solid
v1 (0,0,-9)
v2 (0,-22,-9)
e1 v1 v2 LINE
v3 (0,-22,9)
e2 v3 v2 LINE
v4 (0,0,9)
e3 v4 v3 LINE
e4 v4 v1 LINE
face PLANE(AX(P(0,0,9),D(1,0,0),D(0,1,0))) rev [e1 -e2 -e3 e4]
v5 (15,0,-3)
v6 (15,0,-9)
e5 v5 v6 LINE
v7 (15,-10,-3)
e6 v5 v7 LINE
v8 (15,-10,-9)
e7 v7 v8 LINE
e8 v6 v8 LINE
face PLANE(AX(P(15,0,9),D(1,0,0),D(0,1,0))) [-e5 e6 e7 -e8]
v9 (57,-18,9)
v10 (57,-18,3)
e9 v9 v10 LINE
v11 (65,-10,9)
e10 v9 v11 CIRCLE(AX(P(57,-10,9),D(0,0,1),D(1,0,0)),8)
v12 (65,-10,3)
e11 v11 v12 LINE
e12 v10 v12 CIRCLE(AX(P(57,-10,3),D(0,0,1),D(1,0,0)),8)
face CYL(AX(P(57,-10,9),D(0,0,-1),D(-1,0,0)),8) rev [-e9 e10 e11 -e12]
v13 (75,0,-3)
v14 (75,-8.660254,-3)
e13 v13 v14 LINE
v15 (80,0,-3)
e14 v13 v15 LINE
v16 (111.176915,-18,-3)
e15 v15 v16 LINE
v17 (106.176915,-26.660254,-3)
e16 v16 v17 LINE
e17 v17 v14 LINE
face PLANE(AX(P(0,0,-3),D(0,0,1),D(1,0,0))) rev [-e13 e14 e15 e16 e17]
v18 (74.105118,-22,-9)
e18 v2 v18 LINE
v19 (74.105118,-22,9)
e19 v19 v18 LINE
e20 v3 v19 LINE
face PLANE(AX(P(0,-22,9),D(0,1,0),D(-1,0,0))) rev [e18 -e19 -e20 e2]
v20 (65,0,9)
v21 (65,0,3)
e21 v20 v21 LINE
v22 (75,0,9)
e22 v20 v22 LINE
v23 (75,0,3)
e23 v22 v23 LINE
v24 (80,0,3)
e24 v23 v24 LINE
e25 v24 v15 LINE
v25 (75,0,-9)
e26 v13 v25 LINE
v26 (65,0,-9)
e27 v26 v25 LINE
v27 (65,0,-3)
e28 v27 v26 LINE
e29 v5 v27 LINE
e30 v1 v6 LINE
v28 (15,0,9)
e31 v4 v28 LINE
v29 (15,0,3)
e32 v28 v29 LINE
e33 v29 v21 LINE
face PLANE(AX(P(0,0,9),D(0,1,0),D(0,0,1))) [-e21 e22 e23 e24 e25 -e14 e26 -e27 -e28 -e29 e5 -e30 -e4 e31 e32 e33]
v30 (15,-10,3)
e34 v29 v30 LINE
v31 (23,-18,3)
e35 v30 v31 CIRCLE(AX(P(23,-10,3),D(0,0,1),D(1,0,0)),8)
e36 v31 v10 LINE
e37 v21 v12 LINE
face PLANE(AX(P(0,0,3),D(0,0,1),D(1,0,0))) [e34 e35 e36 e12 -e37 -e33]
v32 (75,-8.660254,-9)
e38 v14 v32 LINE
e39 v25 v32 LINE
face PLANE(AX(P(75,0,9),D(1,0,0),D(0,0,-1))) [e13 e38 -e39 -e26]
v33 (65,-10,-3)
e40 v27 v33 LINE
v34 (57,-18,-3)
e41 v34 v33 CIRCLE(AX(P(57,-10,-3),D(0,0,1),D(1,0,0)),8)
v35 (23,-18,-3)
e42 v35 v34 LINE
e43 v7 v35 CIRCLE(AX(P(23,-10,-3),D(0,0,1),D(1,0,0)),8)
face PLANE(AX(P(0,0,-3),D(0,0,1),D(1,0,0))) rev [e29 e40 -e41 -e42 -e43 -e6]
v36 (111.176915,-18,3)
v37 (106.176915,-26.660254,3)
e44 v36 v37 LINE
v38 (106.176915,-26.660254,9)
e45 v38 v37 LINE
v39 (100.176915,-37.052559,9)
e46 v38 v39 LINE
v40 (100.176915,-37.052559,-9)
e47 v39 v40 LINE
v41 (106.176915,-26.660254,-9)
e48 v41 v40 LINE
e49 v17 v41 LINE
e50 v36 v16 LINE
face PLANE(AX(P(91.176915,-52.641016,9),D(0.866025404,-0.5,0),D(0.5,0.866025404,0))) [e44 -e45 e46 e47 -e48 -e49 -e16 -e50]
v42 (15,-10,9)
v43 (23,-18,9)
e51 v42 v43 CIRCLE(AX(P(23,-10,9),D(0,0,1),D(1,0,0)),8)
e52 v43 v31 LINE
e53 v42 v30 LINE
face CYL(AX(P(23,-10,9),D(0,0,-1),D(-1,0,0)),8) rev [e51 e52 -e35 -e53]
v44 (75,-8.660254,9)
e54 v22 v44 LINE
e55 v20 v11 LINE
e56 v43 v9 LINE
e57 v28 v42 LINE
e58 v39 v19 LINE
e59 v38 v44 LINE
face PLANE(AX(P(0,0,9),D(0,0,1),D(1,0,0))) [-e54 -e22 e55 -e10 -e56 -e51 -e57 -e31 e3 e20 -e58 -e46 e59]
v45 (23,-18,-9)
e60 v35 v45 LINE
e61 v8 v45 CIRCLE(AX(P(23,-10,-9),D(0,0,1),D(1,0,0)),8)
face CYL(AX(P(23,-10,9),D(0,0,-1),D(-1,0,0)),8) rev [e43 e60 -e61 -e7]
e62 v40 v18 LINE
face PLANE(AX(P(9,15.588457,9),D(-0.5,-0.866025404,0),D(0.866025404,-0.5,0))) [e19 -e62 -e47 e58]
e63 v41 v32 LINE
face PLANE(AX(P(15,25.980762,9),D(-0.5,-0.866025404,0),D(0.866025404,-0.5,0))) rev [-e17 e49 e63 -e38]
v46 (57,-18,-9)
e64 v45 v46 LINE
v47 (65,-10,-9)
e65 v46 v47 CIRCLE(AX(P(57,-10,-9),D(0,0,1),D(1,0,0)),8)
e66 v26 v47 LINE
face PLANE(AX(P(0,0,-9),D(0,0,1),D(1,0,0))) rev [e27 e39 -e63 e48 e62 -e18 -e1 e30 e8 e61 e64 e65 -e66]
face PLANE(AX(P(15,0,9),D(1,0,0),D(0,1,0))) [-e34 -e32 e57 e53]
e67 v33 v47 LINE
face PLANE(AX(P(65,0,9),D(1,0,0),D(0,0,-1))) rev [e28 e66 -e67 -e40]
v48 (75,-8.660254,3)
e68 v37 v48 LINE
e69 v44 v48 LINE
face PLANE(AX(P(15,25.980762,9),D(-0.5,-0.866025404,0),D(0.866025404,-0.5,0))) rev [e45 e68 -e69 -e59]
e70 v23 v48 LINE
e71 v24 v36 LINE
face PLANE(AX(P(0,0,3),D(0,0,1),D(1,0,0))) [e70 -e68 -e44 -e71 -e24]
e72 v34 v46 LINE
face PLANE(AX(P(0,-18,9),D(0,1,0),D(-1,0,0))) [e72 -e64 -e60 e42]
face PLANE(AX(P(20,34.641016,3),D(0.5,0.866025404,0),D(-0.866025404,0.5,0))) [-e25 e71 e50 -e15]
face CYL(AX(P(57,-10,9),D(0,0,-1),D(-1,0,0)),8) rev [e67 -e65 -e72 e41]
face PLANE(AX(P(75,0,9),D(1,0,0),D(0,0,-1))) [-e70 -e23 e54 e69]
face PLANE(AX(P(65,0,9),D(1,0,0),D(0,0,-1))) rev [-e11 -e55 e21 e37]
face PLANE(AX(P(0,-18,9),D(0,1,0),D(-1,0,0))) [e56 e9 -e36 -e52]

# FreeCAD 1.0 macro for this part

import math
import FreeCAD as App
import Part
import Sketcher
from FreeCAD import Vector
Q = App.Units.Quantity


def add_polygon(sketch, points):
    """Adds a closed chain of lines whose ends are joined by coincident constraints."""
    first, n = sketch.GeometryCount, len(points)
    for a, b in zip(points, points[1:] + points[:1]):
        sketch.addGeometry(Part.LineSegment(App.Vector(*a, 0), App.Vector(*b, 0)), False)
    for i in range(n):
        sketch.addConstraint(Sketcher.Constraint("Coincident", first + i, 2, first + (i + 1) % n, 1))

doc = App.newDocument("Part")
body = doc.addObject("PartDesign::Body", "Body")

sketch1 = body.newObject("Sketcher::SketchObject", "Sketch")
sketch1.AttachmentSupport = (doc.getObject("XY_Plane"), [""])
sketch1.MapMode = "FlatFace"
sketch1.addGeometry(Part.LineSegment(Vector(75, -8.660254, 0), Vector(75, 0, 0)), False)
sketch1.addGeometry(Part.LineSegment(Vector(75, 0, 0), Vector(65, 0, 0)), False)
sketch1.addGeometry(Part.LineSegment(Vector(65, 0, 0), Vector(65, -10, 0)), False)
sketch1.addGeometry(Part.ArcOfCircle(Part.Circle(Vector(57, -10, 0), Vector(0, 0, 1), 8), math.radians(-90), math.radians(0)), False)
sketch1.addGeometry(Part.LineSegment(Vector(57, -18, 0), Vector(23, -18, 0)), False)
sketch1.addGeometry(Part.ArcOfCircle(Part.Circle(Vector(23, -10, 0), Vector(0, 0, 1), 8), math.radians(-180), math.radians(-90)), False)
sketch1.addGeometry(Part.LineSegment(Vector(15, -10, 0), Vector(15, 0, 0)), False)
sketch1.addGeometry(Part.LineSegment(Vector(15, 0, 0), Vector(0, 0, 0)), False)
sketch1.addGeometry(Part.LineSegment(Vector(0, 0, 0), Vector(0, -22, 0)), False)
sketch1.addGeometry(Part.LineSegment(Vector(0, -22, 0), Vector(74.105118, -22, 0)), False)
sketch1.addGeometry(Part.LineSegment(Vector(74.105118, -22, 0), Vector(100.176915, -37.052559, 0)), False)
sketch1.addGeometry(Part.LineSegment(Vector(100.176915, -37.052559, 0), Vector(106.176915, -26.660254, 0)), False)
sketch1.addGeometry(Part.LineSegment(Vector(106.176915, -26.660254, 0), Vector(75, -8.660254, 0)), False)
sketch1.addConstraint(Sketcher.Constraint("Coincident", 0, 2, 1, 1))
sketch1.addConstraint(Sketcher.Constraint("Coincident", 1, 2, 2, 1))
sketch1.addConstraint(Sketcher.Constraint("Tangent", 2, 2, 3, 2))
sketch1.addConstraint(Sketcher.Constraint("Tangent", 3, 1, 4, 1))
sketch1.addConstraint(Sketcher.Constraint("Tangent", 4, 2, 5, 2))
sketch1.addConstraint(Sketcher.Constraint("Tangent", 5, 1, 6, 1))
sketch1.addConstraint(Sketcher.Constraint("Coincident", 6, 2, 7, 1))
sketch1.addConstraint(Sketcher.Constraint("Coincident", 7, 2, 8, 1))
sketch1.addConstraint(Sketcher.Constraint("Coincident", 8, 2, 9, 1))
sketch1.addConstraint(Sketcher.Constraint("Coincident", 9, 2, 10, 1))
sketch1.addConstraint(Sketcher.Constraint("Coincident", 10, 2, 11, 1))
sketch1.addConstraint(Sketcher.Constraint("Coincident", 11, 2, 12, 1))
sketch1.addConstraint(Sketcher.Constraint("Coincident", 12, 2, 0, 1))
sketch1.addConstraint(Sketcher.Constraint("Vertical", 0))
sketch1.addConstraint(Sketcher.Constraint("Horizontal", 1))
sketch1.addConstraint(Sketcher.Constraint("Vertical", 2))
sketch1.addConstraint(Sketcher.Constraint("Horizontal", 4))
sketch1.addConstraint(Sketcher.Constraint("Vertical", 6))
sketch1.addConstraint(Sketcher.Constraint("Horizontal", 7))
sketch1.addConstraint(Sketcher.Constraint("Vertical", 8))
sketch1.addConstraint(Sketcher.Constraint("Horizontal", 9))
sketch1.addConstraint(Sketcher.Constraint("Coincident", 7, 2, -1, 1))
sketch1.addConstraint(Sketcher.Constraint("Equal", 3, 5))
sketch1.addConstraint(Sketcher.Constraint("PointOnObject", 0, 2, -1))
sketch1.addConstraint(Sketcher.Constraint("Perpendicular", 10, 11))
sketch1.addConstraint(Sketcher.Constraint("Perpendicular", 11, 12))
sketch1.addConstraint(Sketcher.Constraint("Equal", 1, 2))
sketch1.addConstraint(Sketcher.Constraint("Radius", 3, Q("8 mm")))
sketch1.addConstraint(Sketcher.Constraint("DistanceX", 1, 2, 1, 1, Q("10 mm")))
sketch1.addConstraint(Sketcher.Constraint("DistanceX", 4, 2, 4, 1, Q("34 mm")))
sketch1.addConstraint(Sketcher.Constraint("DistanceX", 7, 2, 7, 1, Q("15 mm")))
sketch1.addConstraint(Sketcher.Constraint("DistanceY", 8, 2, 8, 1, Q("22 mm")))
sketch1.addConstraint(Sketcher.Constraint("Angle", 10, Q("-30 deg")))
sketch1.addConstraint(Sketcher.Constraint("Distance", 11, Q("12 mm")))
sketch1.addConstraint(Sketcher.Constraint("Distance", 12, Q("36 mm")))
sketch1.addConstraint(Sketcher.Constraint("DistanceX", 9, 1, 9, 2, Q("74.105118 mm")))
pad1 = body.newObject("PartDesign::Pad", "Pad")
pad1.Profile = sketch1
pad1.Length = 18
pad1.Midplane = True

sketch2 = body.newObject("Sketcher::SketchObject", "Sketch001")
sketch2.AttachmentSupport = (doc.getObject("XY_Plane"), [""])
sketch2.MapMode = "FlatFace"
add_polygon(sketch2, [(80, 0), (75, 0), (75, -8.660254), (106.176915, -26.660254), (111.176915, -18)])
sketch2.addGeometry(Part.LineSegment(Vector(65, -10, 0), Vector(65, 0, 0)), False)
sketch2.addGeometry(Part.LineSegment(Vector(65, 0, 0), Vector(15, 0, 0)), False)
sketch2.addGeometry(Part.LineSegment(Vector(15, 0, 0), Vector(15, -10, 0)), False)
sketch2.addGeometry(Part.ArcOfCircle(Part.Circle(Vector(23, -10, 0), Vector(0, 0, 1), 8), math.radians(-180), math.radians(-90)), False)
sketch2.addGeometry(Part.LineSegment(Vector(23, -18, 0), Vector(57, -18, 0)), False)
sketch2.addGeometry(Part.ArcOfCircle(Part.Circle(Vector(57, -10, 0), Vector(0, 0, 1), 8), math.radians(-90), math.radians(0)), False)
sketch2.addConstraint(Sketcher.Constraint("Coincident", 5, 2, 6, 1))
sketch2.addConstraint(Sketcher.Constraint("Coincident", 6, 2, 7, 1))
sketch2.addConstraint(Sketcher.Constraint("Tangent", 7, 2, 8, 1))
sketch2.addConstraint(Sketcher.Constraint("Tangent", 8, 2, 9, 1))
sketch2.addConstraint(Sketcher.Constraint("Tangent", 9, 2, 10, 1))
sketch2.addConstraint(Sketcher.Constraint("Tangent", 10, 2, 5, 1))
sketch2.addConstraint(Sketcher.Constraint("Horizontal", 0))
sketch2.addConstraint(Sketcher.Constraint("Vertical", 1))
sketch2.addConstraint(Sketcher.Constraint("Vertical", 5))
sketch2.addConstraint(Sketcher.Constraint("Horizontal", 6))
sketch2.addConstraint(Sketcher.Constraint("Vertical", 7))
sketch2.addConstraint(Sketcher.Constraint("Horizontal", 9))
sketch2.addConstraint(Sketcher.Constraint("Equal", 8, 10))
sketch2.addConstraint(Sketcher.Constraint("PointOnObject", 0, 2, -1))
sketch2.addConstraint(Sketcher.Constraint("PointOnObject", 5, 2, -1))
sketch2.addConstraint(Sketcher.Constraint("Perpendicular", 2, 3))
sketch2.addConstraint(Sketcher.Constraint("Perpendicular", 3, 4))
sketch2.addConstraint(Sketcher.Constraint("Horizontal", 3, 2, 8, 2))
sketch2.addConstraint(Sketcher.Constraint("Equal", 2, 4))
sketch2.addConstraint(Sketcher.Constraint("Radius", 8, Q("8 mm")))
sketch2.addConstraint(Sketcher.Constraint("DistanceX", 0, 2, 0, 1, Q("5 mm")))
sketch2.addConstraint(Sketcher.Constraint("DistanceX", 6, 2, 6, 1, Q("50 mm")))
sketch2.addConstraint(Sketcher.Constraint("DistanceY", 5, 1, 5, 2, Q("10 mm")))
sketch2.addConstraint(Sketcher.Constraint("Angle", 2, Q("-30 deg")))
sketch2.addConstraint(Sketcher.Constraint("DistanceX", -1, 1, 8, 3, Q("23 mm")))
sketch2.addConstraint(Sketcher.Constraint("DistanceX", -1, 1, 0, 2, Q("75 mm")))
pad2 = body.newObject("PartDesign::Pad", "Pad001")
pad2.Profile = sketch2
pad2.Length = 6
pad2.Midplane = True

doc.recompute()
